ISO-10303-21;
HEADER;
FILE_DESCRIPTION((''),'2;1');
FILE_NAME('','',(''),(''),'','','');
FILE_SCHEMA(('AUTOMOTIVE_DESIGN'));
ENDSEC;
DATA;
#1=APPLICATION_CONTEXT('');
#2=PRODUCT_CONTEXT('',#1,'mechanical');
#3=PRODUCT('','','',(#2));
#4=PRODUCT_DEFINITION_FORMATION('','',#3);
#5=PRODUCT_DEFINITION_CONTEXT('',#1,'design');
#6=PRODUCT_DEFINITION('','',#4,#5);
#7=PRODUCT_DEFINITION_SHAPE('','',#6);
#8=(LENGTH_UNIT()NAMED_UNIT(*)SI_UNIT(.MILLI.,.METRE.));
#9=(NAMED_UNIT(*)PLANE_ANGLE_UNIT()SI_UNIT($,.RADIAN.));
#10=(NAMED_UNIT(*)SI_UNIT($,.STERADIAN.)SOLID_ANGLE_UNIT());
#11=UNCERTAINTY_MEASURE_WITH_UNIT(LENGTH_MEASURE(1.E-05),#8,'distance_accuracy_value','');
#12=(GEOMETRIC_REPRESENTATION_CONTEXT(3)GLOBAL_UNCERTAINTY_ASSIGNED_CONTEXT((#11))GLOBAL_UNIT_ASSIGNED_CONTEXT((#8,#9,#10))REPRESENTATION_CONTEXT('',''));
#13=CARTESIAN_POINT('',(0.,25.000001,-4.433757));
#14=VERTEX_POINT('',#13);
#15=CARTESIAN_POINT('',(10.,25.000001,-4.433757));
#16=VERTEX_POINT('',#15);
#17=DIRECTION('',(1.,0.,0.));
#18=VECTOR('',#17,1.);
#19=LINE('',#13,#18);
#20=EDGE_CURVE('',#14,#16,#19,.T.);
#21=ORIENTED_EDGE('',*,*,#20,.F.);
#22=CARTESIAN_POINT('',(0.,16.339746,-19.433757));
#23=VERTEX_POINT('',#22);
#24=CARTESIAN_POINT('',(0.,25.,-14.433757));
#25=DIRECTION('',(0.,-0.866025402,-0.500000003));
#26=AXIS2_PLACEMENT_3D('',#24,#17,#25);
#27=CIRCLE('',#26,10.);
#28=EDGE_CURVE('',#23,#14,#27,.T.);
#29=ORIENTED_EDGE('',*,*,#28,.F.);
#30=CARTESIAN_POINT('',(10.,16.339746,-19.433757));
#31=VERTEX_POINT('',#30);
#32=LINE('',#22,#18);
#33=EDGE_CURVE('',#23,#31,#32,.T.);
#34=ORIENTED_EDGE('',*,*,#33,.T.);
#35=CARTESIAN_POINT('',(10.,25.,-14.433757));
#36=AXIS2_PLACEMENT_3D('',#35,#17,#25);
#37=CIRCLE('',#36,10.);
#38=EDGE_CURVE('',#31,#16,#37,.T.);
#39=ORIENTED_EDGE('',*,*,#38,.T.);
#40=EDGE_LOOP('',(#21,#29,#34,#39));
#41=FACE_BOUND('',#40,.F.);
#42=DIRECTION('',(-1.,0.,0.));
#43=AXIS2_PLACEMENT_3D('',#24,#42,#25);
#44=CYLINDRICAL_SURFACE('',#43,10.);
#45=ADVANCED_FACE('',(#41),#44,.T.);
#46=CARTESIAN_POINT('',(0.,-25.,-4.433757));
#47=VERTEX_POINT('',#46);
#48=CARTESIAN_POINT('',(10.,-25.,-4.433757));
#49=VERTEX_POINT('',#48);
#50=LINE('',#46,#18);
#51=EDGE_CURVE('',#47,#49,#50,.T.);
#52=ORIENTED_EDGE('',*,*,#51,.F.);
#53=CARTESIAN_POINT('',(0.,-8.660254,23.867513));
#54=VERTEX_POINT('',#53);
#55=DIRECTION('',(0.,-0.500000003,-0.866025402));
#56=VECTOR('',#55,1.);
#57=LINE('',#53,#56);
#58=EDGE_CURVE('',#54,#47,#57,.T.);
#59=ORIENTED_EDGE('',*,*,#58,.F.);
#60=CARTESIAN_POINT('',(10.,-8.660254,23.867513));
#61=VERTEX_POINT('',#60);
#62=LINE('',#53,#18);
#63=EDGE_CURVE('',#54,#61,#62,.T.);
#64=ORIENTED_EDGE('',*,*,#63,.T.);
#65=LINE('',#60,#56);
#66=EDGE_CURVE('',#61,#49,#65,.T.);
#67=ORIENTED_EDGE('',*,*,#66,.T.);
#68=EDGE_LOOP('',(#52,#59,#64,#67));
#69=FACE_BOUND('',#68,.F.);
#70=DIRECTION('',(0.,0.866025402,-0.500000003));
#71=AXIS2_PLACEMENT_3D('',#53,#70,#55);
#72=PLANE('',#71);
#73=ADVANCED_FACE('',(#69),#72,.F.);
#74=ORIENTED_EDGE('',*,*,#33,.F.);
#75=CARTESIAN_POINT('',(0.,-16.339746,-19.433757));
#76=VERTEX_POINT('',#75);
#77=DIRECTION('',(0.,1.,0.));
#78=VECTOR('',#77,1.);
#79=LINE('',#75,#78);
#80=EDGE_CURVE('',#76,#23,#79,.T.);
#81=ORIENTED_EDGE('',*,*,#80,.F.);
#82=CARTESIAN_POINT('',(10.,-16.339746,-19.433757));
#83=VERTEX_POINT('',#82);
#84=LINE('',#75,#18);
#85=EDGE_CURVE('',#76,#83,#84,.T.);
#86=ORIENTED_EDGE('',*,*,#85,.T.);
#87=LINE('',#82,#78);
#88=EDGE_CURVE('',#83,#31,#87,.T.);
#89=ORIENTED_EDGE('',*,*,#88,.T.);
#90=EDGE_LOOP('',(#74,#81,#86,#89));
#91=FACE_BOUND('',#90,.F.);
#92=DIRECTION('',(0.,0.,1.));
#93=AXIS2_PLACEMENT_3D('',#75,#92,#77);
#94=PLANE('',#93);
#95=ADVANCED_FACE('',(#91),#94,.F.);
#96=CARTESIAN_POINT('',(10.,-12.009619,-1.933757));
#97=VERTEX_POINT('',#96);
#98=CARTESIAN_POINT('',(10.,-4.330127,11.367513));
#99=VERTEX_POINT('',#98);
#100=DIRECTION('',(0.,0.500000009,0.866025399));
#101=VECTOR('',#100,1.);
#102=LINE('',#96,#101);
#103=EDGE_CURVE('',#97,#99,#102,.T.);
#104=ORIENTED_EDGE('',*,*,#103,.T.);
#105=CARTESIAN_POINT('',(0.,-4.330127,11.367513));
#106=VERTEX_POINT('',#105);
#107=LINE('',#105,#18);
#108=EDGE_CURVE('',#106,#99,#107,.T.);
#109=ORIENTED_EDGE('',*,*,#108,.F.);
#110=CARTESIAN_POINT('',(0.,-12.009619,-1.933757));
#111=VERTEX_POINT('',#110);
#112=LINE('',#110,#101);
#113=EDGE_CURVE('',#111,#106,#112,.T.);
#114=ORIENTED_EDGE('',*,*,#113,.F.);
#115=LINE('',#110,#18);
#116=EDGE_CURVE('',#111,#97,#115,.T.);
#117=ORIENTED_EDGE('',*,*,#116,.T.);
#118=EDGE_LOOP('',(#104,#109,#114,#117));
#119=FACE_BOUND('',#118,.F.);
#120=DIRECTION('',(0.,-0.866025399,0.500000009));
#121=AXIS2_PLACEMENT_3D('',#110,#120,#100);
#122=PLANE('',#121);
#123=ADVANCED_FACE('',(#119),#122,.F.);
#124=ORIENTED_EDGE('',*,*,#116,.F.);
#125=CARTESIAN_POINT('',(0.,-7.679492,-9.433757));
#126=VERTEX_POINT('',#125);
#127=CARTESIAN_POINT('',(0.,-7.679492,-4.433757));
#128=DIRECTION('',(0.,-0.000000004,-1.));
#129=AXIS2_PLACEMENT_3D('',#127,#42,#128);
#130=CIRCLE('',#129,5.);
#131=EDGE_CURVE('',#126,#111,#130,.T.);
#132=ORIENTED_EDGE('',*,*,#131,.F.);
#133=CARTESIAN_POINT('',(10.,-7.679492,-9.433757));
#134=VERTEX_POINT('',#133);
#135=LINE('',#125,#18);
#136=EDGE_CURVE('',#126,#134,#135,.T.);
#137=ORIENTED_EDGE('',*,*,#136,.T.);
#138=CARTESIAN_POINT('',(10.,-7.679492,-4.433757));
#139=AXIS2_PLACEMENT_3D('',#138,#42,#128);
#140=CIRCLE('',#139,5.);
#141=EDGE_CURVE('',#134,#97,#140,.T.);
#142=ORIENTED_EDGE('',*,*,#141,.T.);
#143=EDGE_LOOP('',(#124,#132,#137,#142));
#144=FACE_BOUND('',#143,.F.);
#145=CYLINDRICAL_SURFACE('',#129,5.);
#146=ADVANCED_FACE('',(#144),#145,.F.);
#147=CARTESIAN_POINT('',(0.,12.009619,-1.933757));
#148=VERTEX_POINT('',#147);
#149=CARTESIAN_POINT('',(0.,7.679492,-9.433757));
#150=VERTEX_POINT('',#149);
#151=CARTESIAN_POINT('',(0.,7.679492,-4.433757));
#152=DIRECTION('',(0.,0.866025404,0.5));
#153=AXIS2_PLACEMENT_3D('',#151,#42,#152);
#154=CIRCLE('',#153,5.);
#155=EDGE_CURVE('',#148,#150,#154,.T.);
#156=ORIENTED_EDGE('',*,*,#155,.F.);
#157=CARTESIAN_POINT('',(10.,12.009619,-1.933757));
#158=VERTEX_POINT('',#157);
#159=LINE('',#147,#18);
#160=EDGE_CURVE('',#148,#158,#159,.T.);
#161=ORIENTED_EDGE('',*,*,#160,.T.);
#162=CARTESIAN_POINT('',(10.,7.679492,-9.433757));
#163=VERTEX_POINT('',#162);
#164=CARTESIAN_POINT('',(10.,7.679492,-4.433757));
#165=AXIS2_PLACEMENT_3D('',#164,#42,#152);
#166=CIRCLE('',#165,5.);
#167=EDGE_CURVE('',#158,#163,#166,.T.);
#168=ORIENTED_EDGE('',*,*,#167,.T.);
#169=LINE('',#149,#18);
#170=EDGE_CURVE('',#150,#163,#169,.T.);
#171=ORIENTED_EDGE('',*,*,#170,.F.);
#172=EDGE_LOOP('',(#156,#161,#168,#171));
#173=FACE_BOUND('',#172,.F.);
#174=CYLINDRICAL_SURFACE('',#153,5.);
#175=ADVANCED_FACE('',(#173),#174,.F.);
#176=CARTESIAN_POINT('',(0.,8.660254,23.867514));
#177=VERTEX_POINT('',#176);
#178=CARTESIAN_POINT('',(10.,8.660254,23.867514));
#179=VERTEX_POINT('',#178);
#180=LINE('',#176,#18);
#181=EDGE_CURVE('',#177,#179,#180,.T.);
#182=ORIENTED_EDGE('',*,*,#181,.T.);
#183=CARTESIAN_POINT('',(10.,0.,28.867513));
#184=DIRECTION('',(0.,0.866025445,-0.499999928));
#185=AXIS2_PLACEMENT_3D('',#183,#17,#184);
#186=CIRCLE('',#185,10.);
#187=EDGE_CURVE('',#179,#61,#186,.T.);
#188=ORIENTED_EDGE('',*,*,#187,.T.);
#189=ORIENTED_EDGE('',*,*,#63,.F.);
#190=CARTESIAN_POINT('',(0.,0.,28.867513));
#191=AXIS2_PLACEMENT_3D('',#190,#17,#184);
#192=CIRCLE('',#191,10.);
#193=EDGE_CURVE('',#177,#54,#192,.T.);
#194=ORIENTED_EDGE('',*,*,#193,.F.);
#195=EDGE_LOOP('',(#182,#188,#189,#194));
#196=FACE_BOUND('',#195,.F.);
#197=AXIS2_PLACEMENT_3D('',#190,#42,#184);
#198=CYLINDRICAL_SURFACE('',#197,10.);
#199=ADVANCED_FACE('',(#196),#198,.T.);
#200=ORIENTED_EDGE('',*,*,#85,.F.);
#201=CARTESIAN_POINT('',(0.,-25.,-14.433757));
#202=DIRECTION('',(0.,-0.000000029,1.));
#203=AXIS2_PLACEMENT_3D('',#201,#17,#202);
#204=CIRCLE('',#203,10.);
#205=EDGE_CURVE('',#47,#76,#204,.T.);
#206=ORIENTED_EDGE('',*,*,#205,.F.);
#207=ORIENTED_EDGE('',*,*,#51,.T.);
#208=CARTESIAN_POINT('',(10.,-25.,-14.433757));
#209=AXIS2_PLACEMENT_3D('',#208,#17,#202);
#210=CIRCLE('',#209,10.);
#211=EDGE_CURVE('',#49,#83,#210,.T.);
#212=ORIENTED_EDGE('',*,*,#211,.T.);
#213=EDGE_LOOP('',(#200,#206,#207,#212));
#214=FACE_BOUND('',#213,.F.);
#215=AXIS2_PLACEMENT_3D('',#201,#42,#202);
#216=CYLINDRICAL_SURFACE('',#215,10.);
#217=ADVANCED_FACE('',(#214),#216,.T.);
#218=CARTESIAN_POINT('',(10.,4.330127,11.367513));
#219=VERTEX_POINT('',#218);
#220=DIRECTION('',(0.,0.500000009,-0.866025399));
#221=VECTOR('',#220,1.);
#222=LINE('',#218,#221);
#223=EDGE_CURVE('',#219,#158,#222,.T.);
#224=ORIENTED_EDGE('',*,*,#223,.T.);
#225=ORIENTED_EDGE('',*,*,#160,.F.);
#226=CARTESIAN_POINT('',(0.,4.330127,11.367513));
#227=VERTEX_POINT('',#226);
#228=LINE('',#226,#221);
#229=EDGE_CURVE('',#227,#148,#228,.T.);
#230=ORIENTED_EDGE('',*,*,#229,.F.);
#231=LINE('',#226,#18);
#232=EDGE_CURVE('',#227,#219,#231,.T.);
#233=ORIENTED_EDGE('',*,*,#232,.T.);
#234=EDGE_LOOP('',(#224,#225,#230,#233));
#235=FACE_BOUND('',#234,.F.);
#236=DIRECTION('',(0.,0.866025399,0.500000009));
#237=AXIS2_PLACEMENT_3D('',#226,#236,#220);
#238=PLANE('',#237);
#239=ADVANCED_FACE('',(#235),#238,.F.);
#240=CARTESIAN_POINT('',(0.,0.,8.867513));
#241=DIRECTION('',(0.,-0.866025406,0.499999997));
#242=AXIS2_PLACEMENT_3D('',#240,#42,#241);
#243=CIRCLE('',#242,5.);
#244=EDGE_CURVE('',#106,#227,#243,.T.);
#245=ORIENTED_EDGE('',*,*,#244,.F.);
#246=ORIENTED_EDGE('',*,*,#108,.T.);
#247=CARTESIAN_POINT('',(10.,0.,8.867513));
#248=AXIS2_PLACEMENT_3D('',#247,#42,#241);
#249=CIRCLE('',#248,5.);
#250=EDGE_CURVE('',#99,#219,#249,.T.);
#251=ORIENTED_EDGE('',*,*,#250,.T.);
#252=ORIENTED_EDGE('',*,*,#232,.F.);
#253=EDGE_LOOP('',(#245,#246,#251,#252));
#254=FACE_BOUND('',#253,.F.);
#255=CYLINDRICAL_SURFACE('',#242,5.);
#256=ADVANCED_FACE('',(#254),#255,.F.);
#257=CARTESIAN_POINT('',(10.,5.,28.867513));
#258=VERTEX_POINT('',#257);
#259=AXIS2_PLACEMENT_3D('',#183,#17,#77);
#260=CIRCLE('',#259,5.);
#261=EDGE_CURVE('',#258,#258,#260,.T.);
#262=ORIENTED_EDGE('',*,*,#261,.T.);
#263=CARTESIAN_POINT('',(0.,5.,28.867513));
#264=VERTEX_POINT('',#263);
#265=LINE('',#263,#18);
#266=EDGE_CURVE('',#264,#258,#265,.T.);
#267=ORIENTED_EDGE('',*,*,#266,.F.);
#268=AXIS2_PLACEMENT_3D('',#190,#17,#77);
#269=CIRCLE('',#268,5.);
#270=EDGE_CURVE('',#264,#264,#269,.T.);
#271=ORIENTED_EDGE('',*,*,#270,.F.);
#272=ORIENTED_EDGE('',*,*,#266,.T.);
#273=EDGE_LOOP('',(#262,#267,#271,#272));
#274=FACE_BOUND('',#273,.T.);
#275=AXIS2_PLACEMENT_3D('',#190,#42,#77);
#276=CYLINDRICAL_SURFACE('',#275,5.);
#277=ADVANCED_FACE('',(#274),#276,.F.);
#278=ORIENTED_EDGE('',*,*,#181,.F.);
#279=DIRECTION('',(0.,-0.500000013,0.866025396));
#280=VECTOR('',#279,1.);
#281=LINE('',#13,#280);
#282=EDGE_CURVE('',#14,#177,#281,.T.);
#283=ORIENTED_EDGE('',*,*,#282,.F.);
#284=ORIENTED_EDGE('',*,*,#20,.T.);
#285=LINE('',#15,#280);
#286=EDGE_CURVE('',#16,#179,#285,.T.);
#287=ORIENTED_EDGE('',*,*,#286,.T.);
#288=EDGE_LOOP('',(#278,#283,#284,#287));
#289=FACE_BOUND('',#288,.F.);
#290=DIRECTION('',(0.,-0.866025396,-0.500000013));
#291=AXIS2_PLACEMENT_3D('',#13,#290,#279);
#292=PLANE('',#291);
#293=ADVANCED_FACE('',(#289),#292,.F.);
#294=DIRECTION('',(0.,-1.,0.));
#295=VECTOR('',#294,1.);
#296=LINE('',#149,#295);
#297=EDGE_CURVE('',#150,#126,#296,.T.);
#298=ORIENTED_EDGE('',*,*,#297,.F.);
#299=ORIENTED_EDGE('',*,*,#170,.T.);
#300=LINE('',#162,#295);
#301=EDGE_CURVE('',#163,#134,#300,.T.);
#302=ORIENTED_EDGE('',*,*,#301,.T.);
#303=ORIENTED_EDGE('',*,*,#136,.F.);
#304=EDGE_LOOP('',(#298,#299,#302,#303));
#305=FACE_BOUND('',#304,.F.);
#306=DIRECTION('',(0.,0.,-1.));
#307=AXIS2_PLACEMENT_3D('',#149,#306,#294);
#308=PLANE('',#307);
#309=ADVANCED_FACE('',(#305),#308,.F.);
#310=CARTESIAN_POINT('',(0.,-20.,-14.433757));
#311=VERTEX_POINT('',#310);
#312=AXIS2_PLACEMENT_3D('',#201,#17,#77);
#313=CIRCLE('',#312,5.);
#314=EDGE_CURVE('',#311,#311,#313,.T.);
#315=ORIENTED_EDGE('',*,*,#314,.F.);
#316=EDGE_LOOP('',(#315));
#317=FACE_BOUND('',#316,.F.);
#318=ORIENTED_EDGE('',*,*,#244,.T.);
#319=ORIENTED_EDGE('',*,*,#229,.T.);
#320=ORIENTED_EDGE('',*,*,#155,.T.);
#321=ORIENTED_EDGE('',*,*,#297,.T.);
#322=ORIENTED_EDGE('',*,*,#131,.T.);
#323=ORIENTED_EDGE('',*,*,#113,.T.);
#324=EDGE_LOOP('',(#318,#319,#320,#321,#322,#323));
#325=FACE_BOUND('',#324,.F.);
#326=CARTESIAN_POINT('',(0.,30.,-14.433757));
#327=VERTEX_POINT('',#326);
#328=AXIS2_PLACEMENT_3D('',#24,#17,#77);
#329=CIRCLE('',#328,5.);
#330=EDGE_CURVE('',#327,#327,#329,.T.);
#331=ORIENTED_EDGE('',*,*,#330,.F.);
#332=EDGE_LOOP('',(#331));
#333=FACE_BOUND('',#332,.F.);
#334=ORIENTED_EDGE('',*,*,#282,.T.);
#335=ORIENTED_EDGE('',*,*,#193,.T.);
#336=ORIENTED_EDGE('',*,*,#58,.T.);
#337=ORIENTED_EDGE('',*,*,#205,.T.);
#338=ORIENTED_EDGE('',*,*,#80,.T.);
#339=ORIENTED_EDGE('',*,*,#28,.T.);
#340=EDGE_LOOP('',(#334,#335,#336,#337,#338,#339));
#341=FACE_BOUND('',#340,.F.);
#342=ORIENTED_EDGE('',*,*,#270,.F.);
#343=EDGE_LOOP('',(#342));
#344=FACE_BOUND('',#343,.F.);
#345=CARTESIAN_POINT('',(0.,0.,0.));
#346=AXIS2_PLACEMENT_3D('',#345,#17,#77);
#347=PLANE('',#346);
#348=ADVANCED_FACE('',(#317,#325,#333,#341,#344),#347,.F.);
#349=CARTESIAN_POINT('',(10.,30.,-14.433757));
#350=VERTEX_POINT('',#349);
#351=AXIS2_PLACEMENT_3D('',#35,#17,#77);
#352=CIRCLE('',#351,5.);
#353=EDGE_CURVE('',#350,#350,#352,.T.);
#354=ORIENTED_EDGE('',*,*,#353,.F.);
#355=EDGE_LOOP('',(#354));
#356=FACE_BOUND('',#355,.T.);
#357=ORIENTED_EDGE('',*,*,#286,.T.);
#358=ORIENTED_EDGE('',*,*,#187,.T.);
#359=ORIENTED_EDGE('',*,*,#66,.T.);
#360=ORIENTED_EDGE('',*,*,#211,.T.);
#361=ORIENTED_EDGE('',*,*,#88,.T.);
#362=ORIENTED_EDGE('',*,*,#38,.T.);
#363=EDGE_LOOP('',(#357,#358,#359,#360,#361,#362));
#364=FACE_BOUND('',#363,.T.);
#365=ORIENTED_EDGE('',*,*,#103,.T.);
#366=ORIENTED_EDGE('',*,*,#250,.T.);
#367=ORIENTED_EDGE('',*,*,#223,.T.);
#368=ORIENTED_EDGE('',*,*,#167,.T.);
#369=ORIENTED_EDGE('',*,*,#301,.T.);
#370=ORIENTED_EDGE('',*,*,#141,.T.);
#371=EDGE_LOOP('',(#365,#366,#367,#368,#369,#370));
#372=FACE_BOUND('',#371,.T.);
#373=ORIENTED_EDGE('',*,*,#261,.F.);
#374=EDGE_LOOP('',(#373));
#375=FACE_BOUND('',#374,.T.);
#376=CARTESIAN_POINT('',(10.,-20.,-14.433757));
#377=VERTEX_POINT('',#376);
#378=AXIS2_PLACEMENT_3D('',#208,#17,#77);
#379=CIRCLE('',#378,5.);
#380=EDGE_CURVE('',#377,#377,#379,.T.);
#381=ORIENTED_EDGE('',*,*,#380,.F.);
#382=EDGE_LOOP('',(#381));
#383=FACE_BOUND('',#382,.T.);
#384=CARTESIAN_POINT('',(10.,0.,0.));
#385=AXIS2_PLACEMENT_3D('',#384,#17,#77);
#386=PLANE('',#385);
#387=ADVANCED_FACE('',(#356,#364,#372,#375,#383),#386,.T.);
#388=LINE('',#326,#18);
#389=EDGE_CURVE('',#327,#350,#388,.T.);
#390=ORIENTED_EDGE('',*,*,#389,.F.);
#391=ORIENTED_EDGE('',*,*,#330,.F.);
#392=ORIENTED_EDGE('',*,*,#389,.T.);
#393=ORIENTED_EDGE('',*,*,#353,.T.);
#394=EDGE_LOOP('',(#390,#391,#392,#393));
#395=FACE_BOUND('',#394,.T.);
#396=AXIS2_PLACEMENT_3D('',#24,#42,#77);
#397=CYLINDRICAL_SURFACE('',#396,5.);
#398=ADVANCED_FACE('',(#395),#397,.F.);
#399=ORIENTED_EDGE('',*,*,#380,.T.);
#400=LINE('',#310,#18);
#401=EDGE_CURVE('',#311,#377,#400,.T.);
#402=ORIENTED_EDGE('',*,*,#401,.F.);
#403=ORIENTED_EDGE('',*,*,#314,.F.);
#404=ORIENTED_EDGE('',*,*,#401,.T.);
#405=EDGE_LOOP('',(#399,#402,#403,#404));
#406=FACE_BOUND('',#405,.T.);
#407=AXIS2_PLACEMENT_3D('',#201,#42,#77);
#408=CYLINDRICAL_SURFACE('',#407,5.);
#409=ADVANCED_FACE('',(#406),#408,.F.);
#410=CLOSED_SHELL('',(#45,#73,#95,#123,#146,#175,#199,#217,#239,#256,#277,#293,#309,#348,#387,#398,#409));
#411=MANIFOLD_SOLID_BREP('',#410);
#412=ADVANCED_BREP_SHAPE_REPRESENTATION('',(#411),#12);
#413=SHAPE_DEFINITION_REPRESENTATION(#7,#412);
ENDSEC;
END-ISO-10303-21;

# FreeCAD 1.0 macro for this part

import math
import FreeCAD as App
import Part
import Sketcher
Q = App.Units.Quantity

doc = App.newDocument("Part")
body = doc.addObject("PartDesign::Body", "Body")

sketch1 = body.newObject("Sketcher::SketchObject", "Sketch")
sketch1.AttachmentSupport = (doc.getObject("YZ_Plane"), [""])
sketch1.MapMode = "FlatFace"
sketch1.addGeometry([
    Part.LineSegment(App.Vector(25, -4.4, 0), App.Vector(8.7, 23.9, 0)),
    Part.ArcOfCircle(Part.Circle(App.Vector(0, 28.9, 0), App.Vector(0, 0, 1), 10), math.radians(-30), math.radians(210)),
    Part.LineSegment(App.Vector(-8.7, 23.9, 0), App.Vector(-25, -4.4, 0)),
    Part.ArcOfCircle(Part.Circle(App.Vector(-25, -14.4, 0), App.Vector(0, 0, 1), 10), math.radians(90), math.radians(330)),
    Part.LineSegment(App.Vector(-16.3, -19.4, 0), App.Vector(16.3, -19.4, 0)),
    Part.ArcOfCircle(Part.Circle(App.Vector(25, -14.4, 0), App.Vector(0, 0, 1), 10), math.radians(-150), math.radians(90)),
    Part.Circle(App.Vector(-25, -14.4, 0), App.Vector(0, 0, 1), 5),
    Part.Circle(App.Vector(25, -14.4, 0), App.Vector(0, 0, 1), 5),
    Part.LineSegment(App.Vector(-12, -1.9, 0), App.Vector(-4.3, 11.4, 0)),
    Part.ArcOfCircle(Part.Circle(App.Vector(0, 8.9, 0), App.Vector(0, 0, 1), 5), math.radians(30), math.radians(150)),
    Part.LineSegment(App.Vector(4.3, 11.4, 0), App.Vector(12, -1.9, 0)),
    Part.ArcOfCircle(Part.Circle(App.Vector(7.7, -4.4, 0), App.Vector(0, 0, 1), 5), math.radians(-90), math.radians(30)),
    Part.LineSegment(App.Vector(7.7, -9.4, 0), App.Vector(-7.7, -9.4, 0)),
    Part.ArcOfCircle(Part.Circle(App.Vector(-7.7, -4.4, 0), App.Vector(0, 0, 1), 5), math.radians(150), math.radians(270)),
    Part.Circle(App.Vector(0, 28.9, 0), App.Vector(0, 0, 1), 5),
], False)
sketch1.addConstraint([
    Sketcher.Constraint("Coincident", 0, 2, 1, 1),
    Sketcher.Constraint("Coincident", 1, 2, 2, 1),
    Sketcher.Constraint("Coincident", 2, 2, 3, 1),
    Sketcher.Constraint("Coincident", 3, 2, 4, 1),
    Sketcher.Constraint("Coincident", 4, 2, 5, 1),
    Sketcher.Constraint("Coincident", 5, 2, 0, 1),
    Sketcher.Constraint("Tangent", 8, 2, 9, 2),
    Sketcher.Constraint("Tangent", 9, 1, 10, 1),
    Sketcher.Constraint("Tangent", 10, 2, 11, 2),
    Sketcher.Constraint("Tangent", 11, 1, 12, 1),
    Sketcher.Constraint("Tangent", 12, 2, 13, 2),
    Sketcher.Constraint("Tangent", 13, 1, 8, 1),
    Sketcher.Constraint("Horizontal", 4),
    Sketcher.Constraint("Horizontal", 12),
    Sketcher.Constraint("Coincident", 6, 3, 3, 3),
    Sketcher.Constraint("Coincident", 7, 3, 5, 3),
    Sketcher.Constraint("Coincident", 14, 3, 1, 3),
    Sketcher.Constraint("Equal", 1, 3),
    Sketcher.Constraint("Equal", 3, 5),
    Sketcher.Constraint("Equal", 6, 7),
    Sketcher.Constraint("Equal", 7, 9),
    Sketcher.Constraint("Equal", 9, 11),
    Sketcher.Constraint("Equal", 11, 13),
    Sketcher.Constraint("Equal", 13, 14),
    Sketcher.Constraint("Symmetric", 3, 3, 5, 3, -2),
    Sketcher.Constraint("Symmetric", 0, 2, 1, 2, -2),
    Sketcher.Constraint("Symmetric", 8, 2, 9, 1, -2),
    Sketcher.Constraint("Parallel", 2, 8),
    Sketcher.Constraint("Parallel", 0, 10),
    Sketcher.Constraint("Horizontal", 13, 3, 2, 2),
    Sketcher.Constraint("Vertical", 6, 3, 2, 2),
    Sketcher.Constraint("Diameter", 6, 10.0),
    Sketcher.Constraint("Radius", 1, 10.0),
    Sketcher.Constraint("Angle", 0, Q("120.000001 deg")),
    Sketcher.Constraint("DistanceX", 3, 3, -1, 1, 25.0),
    Sketcher.Constraint("DistanceY", 9, 3, 1, 3, 20.0),
    Sketcher.Constraint("DistanceY", 0, 2, 14, 3, 4.999999),
    Sketcher.Constraint("DistanceY", 3, 2, 3, 3, 5.0),
    Sketcher.Constraint("DistanceY", -1, 1, 1, 3, 28.867513),
])
pad1 = body.newObject("PartDesign::Pad", "Pad")
pad1.Profile = sketch1
pad1.Length = 10

doc.recompute()
